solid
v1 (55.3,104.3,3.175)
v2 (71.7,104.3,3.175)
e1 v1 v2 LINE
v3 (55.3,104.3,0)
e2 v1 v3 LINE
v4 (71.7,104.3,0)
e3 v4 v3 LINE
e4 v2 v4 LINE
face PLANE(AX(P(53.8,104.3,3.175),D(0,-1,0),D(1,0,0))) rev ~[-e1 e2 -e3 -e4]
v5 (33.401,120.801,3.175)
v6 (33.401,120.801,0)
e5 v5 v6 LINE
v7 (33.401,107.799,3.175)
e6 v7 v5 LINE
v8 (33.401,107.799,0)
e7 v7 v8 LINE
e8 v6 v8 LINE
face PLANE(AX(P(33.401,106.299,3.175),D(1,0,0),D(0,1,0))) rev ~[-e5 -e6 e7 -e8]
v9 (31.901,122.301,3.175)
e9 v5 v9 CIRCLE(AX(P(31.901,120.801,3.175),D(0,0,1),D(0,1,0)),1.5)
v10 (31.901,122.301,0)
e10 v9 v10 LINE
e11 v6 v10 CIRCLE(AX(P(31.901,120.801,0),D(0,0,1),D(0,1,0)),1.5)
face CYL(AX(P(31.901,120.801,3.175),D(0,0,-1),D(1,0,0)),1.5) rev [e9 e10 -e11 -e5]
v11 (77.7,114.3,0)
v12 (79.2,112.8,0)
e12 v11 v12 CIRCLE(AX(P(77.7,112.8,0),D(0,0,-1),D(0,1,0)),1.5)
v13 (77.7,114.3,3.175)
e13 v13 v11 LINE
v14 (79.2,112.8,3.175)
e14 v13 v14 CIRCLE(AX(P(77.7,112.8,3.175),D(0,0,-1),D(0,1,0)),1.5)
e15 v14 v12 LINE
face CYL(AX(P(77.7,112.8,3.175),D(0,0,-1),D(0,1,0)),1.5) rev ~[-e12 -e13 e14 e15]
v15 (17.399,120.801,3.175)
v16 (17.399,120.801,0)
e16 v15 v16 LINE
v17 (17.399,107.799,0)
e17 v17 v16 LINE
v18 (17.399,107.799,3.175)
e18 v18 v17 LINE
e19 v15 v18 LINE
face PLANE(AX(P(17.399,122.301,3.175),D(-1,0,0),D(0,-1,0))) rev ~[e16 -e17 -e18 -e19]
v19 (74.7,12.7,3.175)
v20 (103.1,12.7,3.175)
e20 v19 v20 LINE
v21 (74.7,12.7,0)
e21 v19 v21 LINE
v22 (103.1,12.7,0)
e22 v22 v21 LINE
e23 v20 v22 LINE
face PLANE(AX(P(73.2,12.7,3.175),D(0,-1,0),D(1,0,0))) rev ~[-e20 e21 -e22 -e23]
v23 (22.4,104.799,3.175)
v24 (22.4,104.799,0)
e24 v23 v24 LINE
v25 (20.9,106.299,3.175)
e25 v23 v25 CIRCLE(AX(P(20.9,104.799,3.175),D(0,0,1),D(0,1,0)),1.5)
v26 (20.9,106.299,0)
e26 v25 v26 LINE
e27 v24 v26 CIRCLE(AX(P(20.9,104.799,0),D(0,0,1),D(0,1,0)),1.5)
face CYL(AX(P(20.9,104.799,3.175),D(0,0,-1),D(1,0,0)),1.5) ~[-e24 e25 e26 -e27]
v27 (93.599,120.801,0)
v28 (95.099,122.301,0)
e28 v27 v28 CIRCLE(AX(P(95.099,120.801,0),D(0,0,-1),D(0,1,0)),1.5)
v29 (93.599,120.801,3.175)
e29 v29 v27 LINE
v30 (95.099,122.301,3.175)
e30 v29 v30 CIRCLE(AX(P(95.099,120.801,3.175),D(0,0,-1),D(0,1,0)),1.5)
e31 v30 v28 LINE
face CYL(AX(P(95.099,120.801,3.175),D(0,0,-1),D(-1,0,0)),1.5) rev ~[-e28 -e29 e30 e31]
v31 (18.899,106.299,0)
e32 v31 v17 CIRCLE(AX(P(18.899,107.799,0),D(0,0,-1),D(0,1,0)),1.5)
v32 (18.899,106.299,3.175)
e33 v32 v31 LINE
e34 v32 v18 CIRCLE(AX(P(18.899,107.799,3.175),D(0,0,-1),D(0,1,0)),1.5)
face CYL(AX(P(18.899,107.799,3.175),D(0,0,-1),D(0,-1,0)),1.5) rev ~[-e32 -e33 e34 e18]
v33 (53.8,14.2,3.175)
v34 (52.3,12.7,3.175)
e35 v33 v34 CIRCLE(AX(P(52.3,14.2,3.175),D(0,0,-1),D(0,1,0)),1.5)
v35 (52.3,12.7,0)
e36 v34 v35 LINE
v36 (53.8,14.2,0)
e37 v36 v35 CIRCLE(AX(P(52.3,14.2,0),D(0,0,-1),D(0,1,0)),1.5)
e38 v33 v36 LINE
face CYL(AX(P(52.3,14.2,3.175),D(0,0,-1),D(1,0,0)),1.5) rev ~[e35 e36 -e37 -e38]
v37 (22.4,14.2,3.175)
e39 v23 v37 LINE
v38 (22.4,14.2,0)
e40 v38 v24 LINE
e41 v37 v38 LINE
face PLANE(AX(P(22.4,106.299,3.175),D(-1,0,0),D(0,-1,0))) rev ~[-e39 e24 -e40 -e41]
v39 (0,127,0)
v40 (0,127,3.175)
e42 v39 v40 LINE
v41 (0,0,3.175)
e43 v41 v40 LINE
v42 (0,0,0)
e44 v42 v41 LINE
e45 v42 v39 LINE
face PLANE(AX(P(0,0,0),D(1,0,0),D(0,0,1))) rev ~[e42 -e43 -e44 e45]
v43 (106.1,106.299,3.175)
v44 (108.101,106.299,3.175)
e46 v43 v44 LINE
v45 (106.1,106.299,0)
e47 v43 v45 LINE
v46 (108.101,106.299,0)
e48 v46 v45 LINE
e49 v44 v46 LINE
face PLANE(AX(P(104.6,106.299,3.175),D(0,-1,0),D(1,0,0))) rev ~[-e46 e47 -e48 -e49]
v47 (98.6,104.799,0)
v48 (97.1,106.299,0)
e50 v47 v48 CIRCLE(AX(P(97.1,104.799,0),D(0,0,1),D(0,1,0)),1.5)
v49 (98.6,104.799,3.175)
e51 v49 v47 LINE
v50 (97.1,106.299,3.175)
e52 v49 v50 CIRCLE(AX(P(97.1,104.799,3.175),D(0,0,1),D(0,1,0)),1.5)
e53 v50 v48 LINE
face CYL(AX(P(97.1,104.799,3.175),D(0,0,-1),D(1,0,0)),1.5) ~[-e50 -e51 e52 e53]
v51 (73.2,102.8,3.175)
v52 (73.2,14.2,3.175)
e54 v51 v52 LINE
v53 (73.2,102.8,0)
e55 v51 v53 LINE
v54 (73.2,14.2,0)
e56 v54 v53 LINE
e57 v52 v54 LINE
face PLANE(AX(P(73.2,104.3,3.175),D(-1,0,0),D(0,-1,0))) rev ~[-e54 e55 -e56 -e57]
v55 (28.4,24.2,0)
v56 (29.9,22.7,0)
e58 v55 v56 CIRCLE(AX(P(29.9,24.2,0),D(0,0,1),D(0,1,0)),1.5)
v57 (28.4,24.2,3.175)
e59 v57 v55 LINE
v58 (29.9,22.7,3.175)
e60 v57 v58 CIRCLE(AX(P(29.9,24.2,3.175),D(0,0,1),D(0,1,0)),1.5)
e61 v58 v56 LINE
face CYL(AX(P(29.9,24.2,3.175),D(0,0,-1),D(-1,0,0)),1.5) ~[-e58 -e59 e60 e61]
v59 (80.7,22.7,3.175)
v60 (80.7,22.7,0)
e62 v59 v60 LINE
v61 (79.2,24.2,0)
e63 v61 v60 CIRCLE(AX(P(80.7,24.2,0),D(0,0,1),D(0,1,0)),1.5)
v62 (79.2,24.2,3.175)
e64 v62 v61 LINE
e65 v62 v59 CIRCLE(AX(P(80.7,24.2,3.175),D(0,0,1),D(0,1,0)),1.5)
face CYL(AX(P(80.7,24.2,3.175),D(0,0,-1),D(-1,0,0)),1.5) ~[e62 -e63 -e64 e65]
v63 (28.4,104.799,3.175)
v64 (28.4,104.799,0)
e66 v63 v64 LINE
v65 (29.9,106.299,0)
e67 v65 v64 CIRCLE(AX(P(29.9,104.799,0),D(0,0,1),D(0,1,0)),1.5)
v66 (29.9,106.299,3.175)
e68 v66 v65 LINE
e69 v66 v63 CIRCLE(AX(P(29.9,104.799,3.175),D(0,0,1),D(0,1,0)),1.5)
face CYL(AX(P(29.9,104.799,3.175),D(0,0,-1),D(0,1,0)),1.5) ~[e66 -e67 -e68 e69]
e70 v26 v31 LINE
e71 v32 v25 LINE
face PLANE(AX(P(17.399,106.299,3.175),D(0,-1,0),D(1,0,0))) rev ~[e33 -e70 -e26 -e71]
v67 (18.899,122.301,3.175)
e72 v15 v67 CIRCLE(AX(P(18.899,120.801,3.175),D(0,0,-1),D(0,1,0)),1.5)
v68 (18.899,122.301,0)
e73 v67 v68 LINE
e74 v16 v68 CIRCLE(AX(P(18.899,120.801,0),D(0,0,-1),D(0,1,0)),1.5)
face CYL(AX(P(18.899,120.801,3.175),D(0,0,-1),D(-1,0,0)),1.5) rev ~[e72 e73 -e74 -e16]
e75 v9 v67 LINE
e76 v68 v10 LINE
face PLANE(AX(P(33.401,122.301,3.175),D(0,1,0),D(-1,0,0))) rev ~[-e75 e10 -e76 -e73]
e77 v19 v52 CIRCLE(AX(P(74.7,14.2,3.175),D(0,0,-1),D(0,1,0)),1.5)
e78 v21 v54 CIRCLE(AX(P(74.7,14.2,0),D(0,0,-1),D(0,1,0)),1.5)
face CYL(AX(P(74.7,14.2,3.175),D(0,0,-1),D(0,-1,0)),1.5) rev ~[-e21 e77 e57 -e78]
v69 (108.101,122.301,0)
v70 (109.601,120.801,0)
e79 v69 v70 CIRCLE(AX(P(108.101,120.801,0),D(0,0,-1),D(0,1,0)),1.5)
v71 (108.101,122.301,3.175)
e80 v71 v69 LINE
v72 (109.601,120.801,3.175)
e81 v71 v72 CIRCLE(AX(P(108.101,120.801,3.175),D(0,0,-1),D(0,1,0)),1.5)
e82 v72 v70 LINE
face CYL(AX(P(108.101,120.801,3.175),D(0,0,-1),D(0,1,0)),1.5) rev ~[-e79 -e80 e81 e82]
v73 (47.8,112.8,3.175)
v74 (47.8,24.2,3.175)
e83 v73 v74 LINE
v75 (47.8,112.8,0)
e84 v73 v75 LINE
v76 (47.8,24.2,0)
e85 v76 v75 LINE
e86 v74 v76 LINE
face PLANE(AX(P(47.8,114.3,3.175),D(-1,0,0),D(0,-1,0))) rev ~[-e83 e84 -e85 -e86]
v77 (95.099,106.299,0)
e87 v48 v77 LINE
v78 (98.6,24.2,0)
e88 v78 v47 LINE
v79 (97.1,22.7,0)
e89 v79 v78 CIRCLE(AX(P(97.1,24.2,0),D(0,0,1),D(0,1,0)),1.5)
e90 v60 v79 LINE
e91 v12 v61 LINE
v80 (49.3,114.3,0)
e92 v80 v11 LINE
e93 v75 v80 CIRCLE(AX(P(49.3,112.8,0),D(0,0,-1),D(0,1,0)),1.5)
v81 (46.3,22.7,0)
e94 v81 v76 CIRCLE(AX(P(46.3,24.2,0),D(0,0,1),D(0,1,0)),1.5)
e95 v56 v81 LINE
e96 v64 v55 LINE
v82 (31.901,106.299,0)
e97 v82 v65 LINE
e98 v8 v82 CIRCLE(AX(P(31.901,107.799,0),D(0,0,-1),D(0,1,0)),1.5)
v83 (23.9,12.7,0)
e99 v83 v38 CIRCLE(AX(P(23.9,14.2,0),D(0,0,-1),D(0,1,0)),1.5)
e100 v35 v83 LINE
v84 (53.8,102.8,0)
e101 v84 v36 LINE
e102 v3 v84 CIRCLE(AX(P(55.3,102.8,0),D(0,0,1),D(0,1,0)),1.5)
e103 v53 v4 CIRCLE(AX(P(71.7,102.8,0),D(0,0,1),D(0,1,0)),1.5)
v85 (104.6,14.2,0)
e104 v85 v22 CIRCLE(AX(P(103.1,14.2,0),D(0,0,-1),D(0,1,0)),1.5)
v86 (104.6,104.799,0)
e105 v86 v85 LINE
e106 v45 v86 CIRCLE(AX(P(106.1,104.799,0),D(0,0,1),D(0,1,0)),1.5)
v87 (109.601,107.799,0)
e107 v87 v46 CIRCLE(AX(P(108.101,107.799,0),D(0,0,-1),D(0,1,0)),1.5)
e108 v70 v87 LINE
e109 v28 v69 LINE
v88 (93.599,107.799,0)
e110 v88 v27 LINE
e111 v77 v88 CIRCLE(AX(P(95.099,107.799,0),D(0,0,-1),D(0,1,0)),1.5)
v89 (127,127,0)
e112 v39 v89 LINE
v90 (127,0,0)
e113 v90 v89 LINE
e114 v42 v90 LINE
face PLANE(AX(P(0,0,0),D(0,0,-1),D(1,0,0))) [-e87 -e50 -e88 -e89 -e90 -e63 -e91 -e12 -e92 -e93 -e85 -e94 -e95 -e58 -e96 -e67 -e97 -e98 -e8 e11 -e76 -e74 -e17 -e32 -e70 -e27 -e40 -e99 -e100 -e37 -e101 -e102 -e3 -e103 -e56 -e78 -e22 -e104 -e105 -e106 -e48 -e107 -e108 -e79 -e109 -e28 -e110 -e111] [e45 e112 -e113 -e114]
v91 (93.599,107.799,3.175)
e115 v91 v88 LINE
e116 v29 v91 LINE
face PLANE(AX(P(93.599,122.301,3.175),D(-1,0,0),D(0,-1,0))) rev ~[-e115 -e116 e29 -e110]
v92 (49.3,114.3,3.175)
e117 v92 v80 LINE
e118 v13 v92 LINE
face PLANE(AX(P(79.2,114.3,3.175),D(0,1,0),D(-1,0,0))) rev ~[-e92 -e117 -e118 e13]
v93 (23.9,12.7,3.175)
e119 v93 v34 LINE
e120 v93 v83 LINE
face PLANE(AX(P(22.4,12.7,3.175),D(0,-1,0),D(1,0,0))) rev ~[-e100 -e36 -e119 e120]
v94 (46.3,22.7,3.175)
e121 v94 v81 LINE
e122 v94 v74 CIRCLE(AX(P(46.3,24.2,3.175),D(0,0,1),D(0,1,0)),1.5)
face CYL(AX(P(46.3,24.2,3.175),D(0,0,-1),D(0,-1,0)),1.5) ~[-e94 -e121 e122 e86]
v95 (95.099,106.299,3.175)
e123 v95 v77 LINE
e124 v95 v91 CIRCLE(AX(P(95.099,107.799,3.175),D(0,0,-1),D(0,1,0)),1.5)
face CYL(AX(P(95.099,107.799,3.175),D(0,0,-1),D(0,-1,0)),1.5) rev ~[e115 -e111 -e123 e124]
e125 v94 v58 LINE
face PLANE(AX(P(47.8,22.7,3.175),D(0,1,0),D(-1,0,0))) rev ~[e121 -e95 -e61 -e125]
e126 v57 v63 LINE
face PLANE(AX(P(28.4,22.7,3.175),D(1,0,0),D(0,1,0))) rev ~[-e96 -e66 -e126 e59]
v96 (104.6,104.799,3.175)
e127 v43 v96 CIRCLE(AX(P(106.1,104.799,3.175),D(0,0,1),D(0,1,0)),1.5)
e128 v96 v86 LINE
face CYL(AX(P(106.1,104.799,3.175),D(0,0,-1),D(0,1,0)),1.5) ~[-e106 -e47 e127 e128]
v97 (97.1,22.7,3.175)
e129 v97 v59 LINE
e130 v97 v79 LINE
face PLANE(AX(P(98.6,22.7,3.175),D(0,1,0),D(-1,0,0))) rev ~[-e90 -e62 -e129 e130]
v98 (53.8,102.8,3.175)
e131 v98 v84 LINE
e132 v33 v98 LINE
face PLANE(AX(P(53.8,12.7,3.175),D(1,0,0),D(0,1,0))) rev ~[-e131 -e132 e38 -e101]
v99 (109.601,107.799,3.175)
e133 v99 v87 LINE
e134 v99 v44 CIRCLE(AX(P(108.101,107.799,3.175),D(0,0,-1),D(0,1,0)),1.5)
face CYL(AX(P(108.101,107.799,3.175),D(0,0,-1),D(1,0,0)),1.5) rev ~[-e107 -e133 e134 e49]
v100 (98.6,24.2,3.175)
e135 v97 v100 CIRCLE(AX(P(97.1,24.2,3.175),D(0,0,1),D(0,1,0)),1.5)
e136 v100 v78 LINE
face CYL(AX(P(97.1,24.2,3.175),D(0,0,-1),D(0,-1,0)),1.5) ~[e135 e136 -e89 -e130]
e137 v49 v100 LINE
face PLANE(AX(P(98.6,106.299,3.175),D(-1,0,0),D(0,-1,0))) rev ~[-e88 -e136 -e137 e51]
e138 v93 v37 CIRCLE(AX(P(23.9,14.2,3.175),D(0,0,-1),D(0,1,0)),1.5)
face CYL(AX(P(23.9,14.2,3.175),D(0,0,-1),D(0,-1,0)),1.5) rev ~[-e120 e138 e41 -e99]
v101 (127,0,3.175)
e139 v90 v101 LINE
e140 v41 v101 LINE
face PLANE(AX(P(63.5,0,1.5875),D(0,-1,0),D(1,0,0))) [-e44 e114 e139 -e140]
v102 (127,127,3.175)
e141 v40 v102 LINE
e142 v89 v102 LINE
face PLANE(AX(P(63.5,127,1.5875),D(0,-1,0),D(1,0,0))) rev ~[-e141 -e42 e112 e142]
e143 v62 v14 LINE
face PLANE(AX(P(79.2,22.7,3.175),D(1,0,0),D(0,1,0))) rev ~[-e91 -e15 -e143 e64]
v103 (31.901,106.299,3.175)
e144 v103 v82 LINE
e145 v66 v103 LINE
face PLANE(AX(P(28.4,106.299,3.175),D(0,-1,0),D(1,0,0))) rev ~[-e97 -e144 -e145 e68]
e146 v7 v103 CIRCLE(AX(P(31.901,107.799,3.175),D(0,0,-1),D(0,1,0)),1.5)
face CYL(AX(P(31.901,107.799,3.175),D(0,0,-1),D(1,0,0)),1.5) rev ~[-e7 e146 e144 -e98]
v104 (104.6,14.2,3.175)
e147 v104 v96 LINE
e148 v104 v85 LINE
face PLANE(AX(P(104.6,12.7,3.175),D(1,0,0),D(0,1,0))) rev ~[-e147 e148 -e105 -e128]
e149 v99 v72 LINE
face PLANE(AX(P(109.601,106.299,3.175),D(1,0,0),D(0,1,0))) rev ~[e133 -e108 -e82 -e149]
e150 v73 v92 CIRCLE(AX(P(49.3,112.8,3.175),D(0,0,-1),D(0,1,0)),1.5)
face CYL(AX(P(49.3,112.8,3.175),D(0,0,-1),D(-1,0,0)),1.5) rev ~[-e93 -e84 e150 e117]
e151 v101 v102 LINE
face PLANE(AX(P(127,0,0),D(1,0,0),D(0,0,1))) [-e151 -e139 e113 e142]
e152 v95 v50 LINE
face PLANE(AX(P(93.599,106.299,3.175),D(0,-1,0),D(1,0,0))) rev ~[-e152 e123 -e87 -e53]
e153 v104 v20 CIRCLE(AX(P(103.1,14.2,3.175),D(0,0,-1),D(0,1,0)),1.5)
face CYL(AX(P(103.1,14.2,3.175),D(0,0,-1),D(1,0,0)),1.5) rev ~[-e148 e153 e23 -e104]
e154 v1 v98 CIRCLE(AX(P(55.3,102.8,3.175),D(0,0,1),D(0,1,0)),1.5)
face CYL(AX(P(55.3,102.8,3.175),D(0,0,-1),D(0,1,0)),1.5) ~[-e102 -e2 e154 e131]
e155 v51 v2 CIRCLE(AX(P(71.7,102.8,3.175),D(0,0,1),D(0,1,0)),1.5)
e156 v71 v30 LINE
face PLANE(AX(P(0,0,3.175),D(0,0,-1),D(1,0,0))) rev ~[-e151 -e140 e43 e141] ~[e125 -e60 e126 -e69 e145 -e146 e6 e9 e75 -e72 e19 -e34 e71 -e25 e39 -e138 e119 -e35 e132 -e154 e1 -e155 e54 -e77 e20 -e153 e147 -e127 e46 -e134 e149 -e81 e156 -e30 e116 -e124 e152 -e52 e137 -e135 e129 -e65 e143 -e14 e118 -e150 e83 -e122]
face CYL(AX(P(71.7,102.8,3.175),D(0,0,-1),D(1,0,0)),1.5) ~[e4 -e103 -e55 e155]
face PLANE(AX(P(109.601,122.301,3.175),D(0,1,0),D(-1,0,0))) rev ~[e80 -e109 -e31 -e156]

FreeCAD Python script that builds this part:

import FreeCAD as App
import Part
import Sketcher

V = App.Vector


def edges_at(feature, points):
    """Names of the edges that pass closest to the given points."""
    edges = feature.Shape.Edges
    near = lambda p: min(range(len(edges)), key=lambda i: edges[i].distToShape(Part.Vertex(*p))[0])
    return sorted({f"Edge{near(p) + 1}" for p in points})

doc = App.newDocument("Part")
body = doc.addObject("PartDesign::Body", "Body")

# Sketch on XZ plane
sketch1 = body.newObject("Sketcher::SketchObject", "Sketch")
sketch1.AttachmentSupport = (doc.getObject("XZ_Plane"), [""])
sketch1.MapMode = "FlatFace"
sketch1.addGeometry([
    Part.LineSegment(V(0, 3.2, 0), V(0, 0, 0)),
    Part.LineSegment(V(0, 0, 0), V(127, 0, 0)),
    Part.LineSegment(V(127, 0, 0), V(127, 3.2, 0)),
    Part.LineSegment(V(127, 3.2, 0), V(0, 3.2, 0)),
], False)
sketch1.addConstraint([
    Sketcher.Constraint("Coincident", 0, 2, 1, 1),
    Sketcher.Constraint("Coincident", 1, 2, 2, 1),
    Sketcher.Constraint("Coincident", 2, 2, 3, 1),
    Sketcher.Constraint("Coincident", 3, 2, 0, 1),
    Sketcher.Constraint("Vertical", 0),
    Sketcher.Constraint("Horizontal", 1),
    Sketcher.Constraint("Vertical", 2),
    Sketcher.Constraint("Horizontal", 3),
    Sketcher.Constraint("Coincident", 0, 2, -1, 1),
    Sketcher.Constraint("DistanceX", 1, 1, 1, 2, 127.0),
    Sketcher.Constraint("DistanceY", 0, 2, 0, 1, 3.175),
])
pad1 = body.newObject("PartDesign::Pad", "Pad")
pad1.Profile = sketch1
pad1.Length = 127
pad1.Reversed = True

# Sketch on XY plane
sketch2 = body.newObject("Sketcher::SketchObject", "Sketch001")
sketch2.AttachmentSupport = (doc.getObject("XY_Plane"), [""])
sketch2.MapMode = "FlatFace"
sketch2.AttachmentOffset = App.Placement(V(0, 0, 3.175), App.Rotation())
sketch2.addGeometry([
    Part.LineSegment(V(33, 106, 0), V(33, 122, 0)),  # 0
    Part.LineSegment(V(33, 122, 0), V(17, 122, 0)),  # 1
    Part.LineSegment(V(17, 122, 0), V(17, 106, 0)),  # 2
    Part.LineSegment(V(17, 106, 0), V(22, 106, 0)),  # 3
    Part.LineSegment(V(22, 106, 0), V(22, 13, 0)),  # 4
    Part.LineSegment(V(22, 13, 0), V(54, 13, 0)),  # 5
    Part.LineSegment(V(54, 13, 0), V(54, 104, 0)),  # 6
    Part.LineSegment(V(54, 104, 0), V(73, 104, 0)),  # 7
    Part.LineSegment(V(73, 104, 0), V(73, 13, 0)),  # 8
    Part.LineSegment(V(73, 13, 0), V(105, 13, 0)),  # 9
    Part.LineSegment(V(105, 13, 0), V(105, 106, 0)),  # 10
    Part.LineSegment(V(105, 106, 0), V(110, 106, 0)),  # 11
    Part.LineSegment(V(110, 106, 0), V(110, 122, 0)),  # 12
    Part.LineSegment(V(110, 122, 0), V(94, 122, 0)),  # 13
    Part.LineSegment(V(94, 122, 0), V(94, 106, 0)),  # 14
    Part.LineSegment(V(94, 106, 0), V(99, 106, 0)),  # 15
    Part.LineSegment(V(99, 106, 0), V(99, 23, 0)),  # 16
    Part.LineSegment(V(99, 23, 0), V(79, 23, 0)),  # 17
    Part.LineSegment(V(79, 23, 0), V(79, 114, 0)),  # 18
    Part.LineSegment(V(79, 114, 0), V(48, 114, 0)),  # 19
    Part.LineSegment(V(48, 114, 0), V(48, 23, 0)),  # 20
    Part.LineSegment(V(48, 23, 0), V(28, 23, 0)),  # 21
    Part.LineSegment(V(28, 23, 0), V(28, 106, 0)),  # 22
    Part.LineSegment(V(28, 106, 0), V(33, 106, 0)),  # 23
], False)
sketch2.addConstraint([
    Sketcher.Constraint("Coincident", 0, 2, 1, 1),
    Sketcher.Constraint("Coincident", 1, 2, 2, 1),
    Sketcher.Constraint("Coincident", 2, 2, 3, 1),
    Sketcher.Constraint("Coincident", 3, 2, 4, 1),
    Sketcher.Constraint("Coincident", 4, 2, 5, 1),
    Sketcher.Constraint("Coincident", 5, 2, 6, 1),
    Sketcher.Constraint("Coincident", 6, 2, 7, 1),
    Sketcher.Constraint("Coincident", 7, 2, 8, 1),
    Sketcher.Constraint("Coincident", 8, 2, 9, 1),
    Sketcher.Constraint("Coincident", 9, 2, 10, 1),
    Sketcher.Constraint("Coincident", 10, 2, 11, 1),
    Sketcher.Constraint("Coincident", 11, 2, 12, 1),
    Sketcher.Constraint("Coincident", 12, 2, 13, 1),
    Sketcher.Constraint("Coincident", 13, 2, 14, 1),
    Sketcher.Constraint("Coincident", 14, 2, 15, 1),
    Sketcher.Constraint("Coincident", 15, 2, 16, 1),
    Sketcher.Constraint("Coincident", 16, 2, 17, 1),
    Sketcher.Constraint("Coincident", 17, 2, 18, 1),
    Sketcher.Constraint("Coincident", 18, 2, 19, 1),
    Sketcher.Constraint("Coincident", 19, 2, 20, 1),
    Sketcher.Constraint("Coincident", 20, 2, 21, 1),
    Sketcher.Constraint("Coincident", 21, 2, 22, 1),
    Sketcher.Constraint("Coincident", 22, 2, 23, 1),
    Sketcher.Constraint("Coincident", 23, 2, 0, 1),
    Sketcher.Constraint("Vertical", 0),
    Sketcher.Constraint("Horizontal", 1),
    Sketcher.Constraint("Vertical", 2),
    Sketcher.Constraint("Horizontal", 3),
    Sketcher.Constraint("Vertical", 4),
    Sketcher.Constraint("Horizontal", 5),
    Sketcher.Constraint("Vertical", 6),
    Sketcher.Constraint("Horizontal", 7),
    Sketcher.Constraint("Vertical", 8),
    Sketcher.Constraint("Horizontal", 9),
    Sketcher.Constraint("Vertical", 10),
    Sketcher.Constraint("Horizontal", 11),
    Sketcher.Constraint("Vertical", 12),
    Sketcher.Constraint("Horizontal", 13),
    Sketcher.Constraint("Vertical", 14),
    Sketcher.Constraint("Horizontal", 15),
    Sketcher.Constraint("Vertical", 16),
    Sketcher.Constraint("Horizontal", 17),
    Sketcher.Constraint("Vertical", 18),
    Sketcher.Constraint("Horizontal", 19),
    Sketcher.Constraint("Vertical", 20),
    Sketcher.Constraint("Horizontal", 21),
    Sketcher.Constraint("Vertical", 22),
    Sketcher.Constraint("Horizontal", 23),
    Sketcher.Constraint("Horizontal", 5, 2, 8, 2),
    Sketcher.Constraint("Horizontal", 3, 2, 10, 2),
    Sketcher.Constraint("Horizontal", 1, 2, 12, 2),
    Sketcher.Constraint("Horizontal", 11, 2, 14, 2),
    Sketcher.Constraint("Horizontal", 17, 2, 20, 2),
    Sketcher.Constraint("Horizontal", 15, 2, 22, 2),
    Sketcher.Constraint("Equal", 5, 9),
    Sketcher.Constraint("Equal", 3, 11),
    Sketcher.Constraint("Equal", 1, 13),
    Sketcher.Constraint("Equal", 11, 15),
    Sketcher.Constraint("Equal", 7, 17),
    Sketcher.Constraint("Equal", 9, 19),
    Sketcher.Constraint("Equal", 17, 21),
    Sketcher.Constraint("Equal", 15, 23),
    Sketcher.Constraint("Equal", 13, 0),
    Sketcher.Constraint("Equal", 8, 18),
    Sketcher.Constraint("DistanceX", 5, 1, 5, 2, 31.4),
    Sketcher.Constraint("DistanceX", 7, 1, 7, 2, 19.4),
    Sketcher.Constraint("DistanceY", 6, 1, 6, 2, 91.6),
    Sketcher.Constraint("DistanceY", 9, 2, 16, 2, 10.0),
    Sketcher.Constraint("DistanceX", -1, 1, 3, 2, 22.4),
    Sketcher.Constraint("DistanceY", -1, 1, 4, 2, 12.7),
    Sketcher.Constraint("DistanceX", 1, 2, 1, 1, 16.002),
    Sketcher.Constraint("DistanceY", 4, 2, 4, 1, 93.599),
])
pocket1 = body.newObject("PartDesign::Pocket", "Pocket")
pocket1.Profile = sketch2
pocket1.Length = 25
doc.recompute()

fillet = body.newObject("PartDesign::Fillet", "Fillet")
fillet.Base = (pocket1, edges_at(pocket1, [
    (17.399, 122.301, 1.587),
    (33.401, 122.301, 1.587),
    (17.399, 106.299, 1.587),
    (22.4, 106.299, 1.587),
    (28.4, 106.299, 1.587),
    (33.401, 106.299, 1.587),
    (53.8, 104.3, 1.587),
    (73.2, 104.3, 1.587),
    (98.6, 106.299, 1.587),
    (104.6, 106.299, 1.587),
    (104.6, 12.7, 1.587),
    (79.2, 22.7, 1.587),
    (28.4, 22.7, 1.587),
    (53.8, 12.7, 1.587),
    (47.8, 22.7, 1.587),
    (98.6, 22.7, 1.587),
    (73.2, 12.7, 1.587),
    (22.4, 12.7, 1.587),
    (109.601, 122.301, 1.587),
    (79.2, 114.3, 1.587),
    (47.8, 114.3, 1.587),
    (93.599, 122.301, 1.587),
    (109.601, 106.299, 1.587),
    (93.599, 106.299, 1.587),
]))
fillet.Radius = 1.5

doc.recompute()
